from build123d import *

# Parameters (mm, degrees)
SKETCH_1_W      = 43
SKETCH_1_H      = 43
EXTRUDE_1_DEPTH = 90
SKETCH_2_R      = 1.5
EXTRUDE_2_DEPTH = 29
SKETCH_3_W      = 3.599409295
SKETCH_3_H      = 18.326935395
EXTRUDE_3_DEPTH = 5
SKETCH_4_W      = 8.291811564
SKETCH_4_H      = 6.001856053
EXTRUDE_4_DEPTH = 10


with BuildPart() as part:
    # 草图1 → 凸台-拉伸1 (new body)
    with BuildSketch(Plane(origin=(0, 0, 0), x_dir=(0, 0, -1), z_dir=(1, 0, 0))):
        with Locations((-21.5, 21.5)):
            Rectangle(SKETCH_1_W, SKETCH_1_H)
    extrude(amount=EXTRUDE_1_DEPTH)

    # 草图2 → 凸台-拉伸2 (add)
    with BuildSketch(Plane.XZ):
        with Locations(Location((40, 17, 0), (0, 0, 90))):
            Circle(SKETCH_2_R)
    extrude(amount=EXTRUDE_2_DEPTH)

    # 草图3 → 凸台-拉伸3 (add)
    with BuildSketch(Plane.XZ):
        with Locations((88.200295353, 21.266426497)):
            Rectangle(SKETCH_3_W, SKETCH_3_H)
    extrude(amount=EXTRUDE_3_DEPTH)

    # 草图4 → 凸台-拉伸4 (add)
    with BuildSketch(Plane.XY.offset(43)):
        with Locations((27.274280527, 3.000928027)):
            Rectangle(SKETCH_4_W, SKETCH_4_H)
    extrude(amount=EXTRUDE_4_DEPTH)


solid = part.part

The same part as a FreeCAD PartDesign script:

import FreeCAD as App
import Part
import Sketcher
Q = App.Units.Quantity

doc = App.newDocument("Part")
params = doc.addObject("Spreadsheet::Sheet", "Params")
for row, (alias, value) in enumerate([
    ("sketch1_width", "43 mm"),
    ("pad1_length", "90 mm"),
    ("sketch2_diameter", "3 mm"),
    ("pad2_length", "29 mm"),
    ("pad3_length", "5 mm"),
    ("pad4_length", "10 mm"),
], start=1):
    params.set(f"A{row}", alias)
    params.set(f"B{row}", "=" + value)
    params.setAlias(f"B{row}", alias)

body = doc.addObject("PartDesign::Body", "Body")

sketch1 = body.newObject("Sketcher::SketchObject", "Sketch")
sketch1.AttachmentSupport = (doc.getObject("YZ_Plane"), [""])
sketch1.MapMode = "FlatFace"
sketch1.addGeometry(Part.LineSegment(App.Vector(43, 43, 0), App.Vector(0, 43, 0)), False)
sketch1.addGeometry(Part.LineSegment(App.Vector(0, 43, 0), App.Vector(0, 0, 0)), False)
sketch1.addGeometry(Part.LineSegment(App.Vector(0, 0, 0), App.Vector(43, 0, 0)), False)
sketch1.addGeometry(Part.LineSegment(App.Vector(43, 0, 0), App.Vector(43, 43, 0)), False)
sketch1.addConstraint(Sketcher.Constraint("Coincident", 0, 2, 1, 1))
sketch1.addConstraint(Sketcher.Constraint("Coincident", 1, 2, 2, 1))
sketch1.addConstraint(Sketcher.Constraint("Coincident", 2, 2, 3, 1))
sketch1.addConstraint(Sketcher.Constraint("Coincident", 3, 2, 0, 1))
sketch1.addConstraint(Sketcher.Constraint("Horizontal", 0))
sketch1.addConstraint(Sketcher.Constraint("Vertical", 1))
sketch1.addConstraint(Sketcher.Constraint("Horizontal", 2))
sketch1.addConstraint(Sketcher.Constraint("Vertical", 3))
sketch1.addConstraint(Sketcher.Constraint("Coincident", 1, 2, -1, 1))
sketch1.addConstraint(Sketcher.Constraint("Equal", 2, 1))
sketch1.addConstraint(Sketcher.Constraint("DistanceX", 0, 2, 0, 1, Q("43 mm")))
sketch1.setExpression("Constraints[10]", "Params.sketch1_width")
pad1 = body.newObject("PartDesign::Pad", "Pad")
pad1.Profile = sketch1
pad1.setExpression("Length", "Params.pad1_length")

sketch2 = body.newObject("Sketcher::SketchObject", "Sketch001")
sketch2.AttachmentSupport = (doc.getObject("XZ_Plane"), [""])
sketch2.MapMode = "FlatFace"
sketch2.addGeometry(Part.Circle(App.Vector(40, 17, 0), App.Vector(0, 0, 1), 1.5), False)
sketch2.addConstraint(Sketcher.Constraint("Diameter", 0, Q("3 mm")))
sketch2.addConstraint(Sketcher.Constraint("DistanceX", -1, 1, 0, 3, Q("40 mm")))
sketch2.addConstraint(Sketcher.Constraint("DistanceY", -1, 1, 0, 3, Q("17 mm")))
sketch2.setExpression("Constraints[0]", "Params.sketch2_diameter")
pad2 = body.newObject("PartDesign::Pad", "Pad001")
pad2.Profile = sketch2
pad2.setExpression("Length", "Params.pad2_length")

sketch3 = body.newObject("Sketcher::SketchObject", "Sketch002")
sketch3.AttachmentSupport = (doc.getObject("XZ_Plane"), [""])
sketch3.MapMode = "FlatFace"
sketch3.addGeometry(Part.LineSegment(App.Vector(86.4, 30.4, 0), App.Vector(86.4, 12.1, 0)), False)
sketch3.addGeometry(Part.LineSegment(App.Vector(86.4, 12.1, 0), App.Vector(90, 12.1, 0)), False)
sketch3.addGeometry(Part.LineSegment(App.Vector(90, 12.1, 0), App.Vector(90, 30.4, 0)), False)
sketch3.addGeometry(Part.LineSegment(App.Vector(90, 30.4, 0), App.Vector(86.4, 30.4, 0)), False)
sketch3.addConstraint(Sketcher.Constraint("Coincident", 0, 2, 1, 1))
sketch3.addConstraint(Sketcher.Constraint("Coincident", 1, 2, 2, 1))
sketch3.addConstraint(Sketcher.Constraint("Coincident", 2, 2, 3, 1))
sketch3.addConstraint(Sketcher.Constraint("Coincident", 3, 2, 0, 1))
sketch3.addConstraint(Sketcher.Constraint("Vertical", 0))
sketch3.addConstraint(Sketcher.Constraint("Horizontal", 1))
sketch3.addConstraint(Sketcher.Constraint("Vertical", 2))
sketch3.addConstraint(Sketcher.Constraint("Horizontal", 3))
sketch3.addConstraint(Sketcher.Constraint("DistanceX", -1, 1, 1, 2, Q("90 mm")))
sketch3.addConstraint(Sketcher.Constraint("DistanceX", 1, 1, 1, 2, Q("3.599409 mm")))
sketch3.addConstraint(Sketcher.Constraint("DistanceY", 0, 2, 0, 1, Q("18.326935 mm")))
sketch3.addConstraint(Sketcher.Constraint("DistanceY", -1, 1, 0, 2, Q("12.102959 mm")))
pad3 = body.newObject("PartDesign::Pad", "Pad002")
pad3.Profile = sketch3
pad3.setExpression("Length", "Params.pad3_length")

sketch4 = body.newObject("Sketcher::SketchObject", "Sketch003")
sketch4.AttachmentSupport = (doc.getObject("XY_Plane"), [""])
sketch4.MapMode = "FlatFace"
sketch4.AttachmentOffset = App.Placement(App.Vector(0, 0, 43), App.Rotation())
sketch4.addGeometry(Part.LineSegment(App.Vector(23, 6, 0), App.Vector(23, 0, 0)), False)
sketch4.addGeometry(Part.LineSegment(App.Vector(23, 0, 0), App.Vector(31, 0, 0)), False)
sketch4.addGeometry(Part.LineSegment(App.Vector(31, 0, 0), App.Vector(31, 6, 0)), False)
sketch4.addGeometry(Part.LineSegment(App.Vector(31, 6, 0), App.Vector(23, 6, 0)), False)
sketch4.addConstraint(Sketcher.Constraint("Coincident", 0, 2, 1, 1))
sketch4.addConstraint(Sketcher.Constraint("Coincident", 1, 2, 2, 1))
sketch4.addConstraint(Sketcher.Constraint("Coincident", 2, 2, 3, 1))
sketch4.addConstraint(Sketcher.Constraint("Coincident", 3, 2, 0, 1))
sketch4.addConstraint(Sketcher.Constraint("Vertical", 0))
sketch4.addConstraint(Sketcher.Constraint("Horizontal", 1))
sketch4.addConstraint(Sketcher.Constraint("Vertical", 2))
sketch4.addConstraint(Sketcher.Constraint("Horizontal", 3))
sketch4.addConstraint(Sketcher.Constraint("PointOnObject", 0, 2, -1))
sketch4.addConstraint(Sketcher.Constraint("DistanceX", 1, 1, 1, 2, Q("8.291812 mm")))
sketch4.addConstraint(Sketcher.Constraint("DistanceY", 0, 2, 0, 1, Q("6.001856 mm")))
sketch4.addConstraint(Sketcher.Constraint("DistanceX", -1, 1, 0, 2, Q("23.128375 mm")))
pad4 = body.newObject("PartDesign::Pad", "Pad003")
pad4.Profile = sketch4
pad4.setExpression("Length", "Params.pad4_length")

doc.recompute()
